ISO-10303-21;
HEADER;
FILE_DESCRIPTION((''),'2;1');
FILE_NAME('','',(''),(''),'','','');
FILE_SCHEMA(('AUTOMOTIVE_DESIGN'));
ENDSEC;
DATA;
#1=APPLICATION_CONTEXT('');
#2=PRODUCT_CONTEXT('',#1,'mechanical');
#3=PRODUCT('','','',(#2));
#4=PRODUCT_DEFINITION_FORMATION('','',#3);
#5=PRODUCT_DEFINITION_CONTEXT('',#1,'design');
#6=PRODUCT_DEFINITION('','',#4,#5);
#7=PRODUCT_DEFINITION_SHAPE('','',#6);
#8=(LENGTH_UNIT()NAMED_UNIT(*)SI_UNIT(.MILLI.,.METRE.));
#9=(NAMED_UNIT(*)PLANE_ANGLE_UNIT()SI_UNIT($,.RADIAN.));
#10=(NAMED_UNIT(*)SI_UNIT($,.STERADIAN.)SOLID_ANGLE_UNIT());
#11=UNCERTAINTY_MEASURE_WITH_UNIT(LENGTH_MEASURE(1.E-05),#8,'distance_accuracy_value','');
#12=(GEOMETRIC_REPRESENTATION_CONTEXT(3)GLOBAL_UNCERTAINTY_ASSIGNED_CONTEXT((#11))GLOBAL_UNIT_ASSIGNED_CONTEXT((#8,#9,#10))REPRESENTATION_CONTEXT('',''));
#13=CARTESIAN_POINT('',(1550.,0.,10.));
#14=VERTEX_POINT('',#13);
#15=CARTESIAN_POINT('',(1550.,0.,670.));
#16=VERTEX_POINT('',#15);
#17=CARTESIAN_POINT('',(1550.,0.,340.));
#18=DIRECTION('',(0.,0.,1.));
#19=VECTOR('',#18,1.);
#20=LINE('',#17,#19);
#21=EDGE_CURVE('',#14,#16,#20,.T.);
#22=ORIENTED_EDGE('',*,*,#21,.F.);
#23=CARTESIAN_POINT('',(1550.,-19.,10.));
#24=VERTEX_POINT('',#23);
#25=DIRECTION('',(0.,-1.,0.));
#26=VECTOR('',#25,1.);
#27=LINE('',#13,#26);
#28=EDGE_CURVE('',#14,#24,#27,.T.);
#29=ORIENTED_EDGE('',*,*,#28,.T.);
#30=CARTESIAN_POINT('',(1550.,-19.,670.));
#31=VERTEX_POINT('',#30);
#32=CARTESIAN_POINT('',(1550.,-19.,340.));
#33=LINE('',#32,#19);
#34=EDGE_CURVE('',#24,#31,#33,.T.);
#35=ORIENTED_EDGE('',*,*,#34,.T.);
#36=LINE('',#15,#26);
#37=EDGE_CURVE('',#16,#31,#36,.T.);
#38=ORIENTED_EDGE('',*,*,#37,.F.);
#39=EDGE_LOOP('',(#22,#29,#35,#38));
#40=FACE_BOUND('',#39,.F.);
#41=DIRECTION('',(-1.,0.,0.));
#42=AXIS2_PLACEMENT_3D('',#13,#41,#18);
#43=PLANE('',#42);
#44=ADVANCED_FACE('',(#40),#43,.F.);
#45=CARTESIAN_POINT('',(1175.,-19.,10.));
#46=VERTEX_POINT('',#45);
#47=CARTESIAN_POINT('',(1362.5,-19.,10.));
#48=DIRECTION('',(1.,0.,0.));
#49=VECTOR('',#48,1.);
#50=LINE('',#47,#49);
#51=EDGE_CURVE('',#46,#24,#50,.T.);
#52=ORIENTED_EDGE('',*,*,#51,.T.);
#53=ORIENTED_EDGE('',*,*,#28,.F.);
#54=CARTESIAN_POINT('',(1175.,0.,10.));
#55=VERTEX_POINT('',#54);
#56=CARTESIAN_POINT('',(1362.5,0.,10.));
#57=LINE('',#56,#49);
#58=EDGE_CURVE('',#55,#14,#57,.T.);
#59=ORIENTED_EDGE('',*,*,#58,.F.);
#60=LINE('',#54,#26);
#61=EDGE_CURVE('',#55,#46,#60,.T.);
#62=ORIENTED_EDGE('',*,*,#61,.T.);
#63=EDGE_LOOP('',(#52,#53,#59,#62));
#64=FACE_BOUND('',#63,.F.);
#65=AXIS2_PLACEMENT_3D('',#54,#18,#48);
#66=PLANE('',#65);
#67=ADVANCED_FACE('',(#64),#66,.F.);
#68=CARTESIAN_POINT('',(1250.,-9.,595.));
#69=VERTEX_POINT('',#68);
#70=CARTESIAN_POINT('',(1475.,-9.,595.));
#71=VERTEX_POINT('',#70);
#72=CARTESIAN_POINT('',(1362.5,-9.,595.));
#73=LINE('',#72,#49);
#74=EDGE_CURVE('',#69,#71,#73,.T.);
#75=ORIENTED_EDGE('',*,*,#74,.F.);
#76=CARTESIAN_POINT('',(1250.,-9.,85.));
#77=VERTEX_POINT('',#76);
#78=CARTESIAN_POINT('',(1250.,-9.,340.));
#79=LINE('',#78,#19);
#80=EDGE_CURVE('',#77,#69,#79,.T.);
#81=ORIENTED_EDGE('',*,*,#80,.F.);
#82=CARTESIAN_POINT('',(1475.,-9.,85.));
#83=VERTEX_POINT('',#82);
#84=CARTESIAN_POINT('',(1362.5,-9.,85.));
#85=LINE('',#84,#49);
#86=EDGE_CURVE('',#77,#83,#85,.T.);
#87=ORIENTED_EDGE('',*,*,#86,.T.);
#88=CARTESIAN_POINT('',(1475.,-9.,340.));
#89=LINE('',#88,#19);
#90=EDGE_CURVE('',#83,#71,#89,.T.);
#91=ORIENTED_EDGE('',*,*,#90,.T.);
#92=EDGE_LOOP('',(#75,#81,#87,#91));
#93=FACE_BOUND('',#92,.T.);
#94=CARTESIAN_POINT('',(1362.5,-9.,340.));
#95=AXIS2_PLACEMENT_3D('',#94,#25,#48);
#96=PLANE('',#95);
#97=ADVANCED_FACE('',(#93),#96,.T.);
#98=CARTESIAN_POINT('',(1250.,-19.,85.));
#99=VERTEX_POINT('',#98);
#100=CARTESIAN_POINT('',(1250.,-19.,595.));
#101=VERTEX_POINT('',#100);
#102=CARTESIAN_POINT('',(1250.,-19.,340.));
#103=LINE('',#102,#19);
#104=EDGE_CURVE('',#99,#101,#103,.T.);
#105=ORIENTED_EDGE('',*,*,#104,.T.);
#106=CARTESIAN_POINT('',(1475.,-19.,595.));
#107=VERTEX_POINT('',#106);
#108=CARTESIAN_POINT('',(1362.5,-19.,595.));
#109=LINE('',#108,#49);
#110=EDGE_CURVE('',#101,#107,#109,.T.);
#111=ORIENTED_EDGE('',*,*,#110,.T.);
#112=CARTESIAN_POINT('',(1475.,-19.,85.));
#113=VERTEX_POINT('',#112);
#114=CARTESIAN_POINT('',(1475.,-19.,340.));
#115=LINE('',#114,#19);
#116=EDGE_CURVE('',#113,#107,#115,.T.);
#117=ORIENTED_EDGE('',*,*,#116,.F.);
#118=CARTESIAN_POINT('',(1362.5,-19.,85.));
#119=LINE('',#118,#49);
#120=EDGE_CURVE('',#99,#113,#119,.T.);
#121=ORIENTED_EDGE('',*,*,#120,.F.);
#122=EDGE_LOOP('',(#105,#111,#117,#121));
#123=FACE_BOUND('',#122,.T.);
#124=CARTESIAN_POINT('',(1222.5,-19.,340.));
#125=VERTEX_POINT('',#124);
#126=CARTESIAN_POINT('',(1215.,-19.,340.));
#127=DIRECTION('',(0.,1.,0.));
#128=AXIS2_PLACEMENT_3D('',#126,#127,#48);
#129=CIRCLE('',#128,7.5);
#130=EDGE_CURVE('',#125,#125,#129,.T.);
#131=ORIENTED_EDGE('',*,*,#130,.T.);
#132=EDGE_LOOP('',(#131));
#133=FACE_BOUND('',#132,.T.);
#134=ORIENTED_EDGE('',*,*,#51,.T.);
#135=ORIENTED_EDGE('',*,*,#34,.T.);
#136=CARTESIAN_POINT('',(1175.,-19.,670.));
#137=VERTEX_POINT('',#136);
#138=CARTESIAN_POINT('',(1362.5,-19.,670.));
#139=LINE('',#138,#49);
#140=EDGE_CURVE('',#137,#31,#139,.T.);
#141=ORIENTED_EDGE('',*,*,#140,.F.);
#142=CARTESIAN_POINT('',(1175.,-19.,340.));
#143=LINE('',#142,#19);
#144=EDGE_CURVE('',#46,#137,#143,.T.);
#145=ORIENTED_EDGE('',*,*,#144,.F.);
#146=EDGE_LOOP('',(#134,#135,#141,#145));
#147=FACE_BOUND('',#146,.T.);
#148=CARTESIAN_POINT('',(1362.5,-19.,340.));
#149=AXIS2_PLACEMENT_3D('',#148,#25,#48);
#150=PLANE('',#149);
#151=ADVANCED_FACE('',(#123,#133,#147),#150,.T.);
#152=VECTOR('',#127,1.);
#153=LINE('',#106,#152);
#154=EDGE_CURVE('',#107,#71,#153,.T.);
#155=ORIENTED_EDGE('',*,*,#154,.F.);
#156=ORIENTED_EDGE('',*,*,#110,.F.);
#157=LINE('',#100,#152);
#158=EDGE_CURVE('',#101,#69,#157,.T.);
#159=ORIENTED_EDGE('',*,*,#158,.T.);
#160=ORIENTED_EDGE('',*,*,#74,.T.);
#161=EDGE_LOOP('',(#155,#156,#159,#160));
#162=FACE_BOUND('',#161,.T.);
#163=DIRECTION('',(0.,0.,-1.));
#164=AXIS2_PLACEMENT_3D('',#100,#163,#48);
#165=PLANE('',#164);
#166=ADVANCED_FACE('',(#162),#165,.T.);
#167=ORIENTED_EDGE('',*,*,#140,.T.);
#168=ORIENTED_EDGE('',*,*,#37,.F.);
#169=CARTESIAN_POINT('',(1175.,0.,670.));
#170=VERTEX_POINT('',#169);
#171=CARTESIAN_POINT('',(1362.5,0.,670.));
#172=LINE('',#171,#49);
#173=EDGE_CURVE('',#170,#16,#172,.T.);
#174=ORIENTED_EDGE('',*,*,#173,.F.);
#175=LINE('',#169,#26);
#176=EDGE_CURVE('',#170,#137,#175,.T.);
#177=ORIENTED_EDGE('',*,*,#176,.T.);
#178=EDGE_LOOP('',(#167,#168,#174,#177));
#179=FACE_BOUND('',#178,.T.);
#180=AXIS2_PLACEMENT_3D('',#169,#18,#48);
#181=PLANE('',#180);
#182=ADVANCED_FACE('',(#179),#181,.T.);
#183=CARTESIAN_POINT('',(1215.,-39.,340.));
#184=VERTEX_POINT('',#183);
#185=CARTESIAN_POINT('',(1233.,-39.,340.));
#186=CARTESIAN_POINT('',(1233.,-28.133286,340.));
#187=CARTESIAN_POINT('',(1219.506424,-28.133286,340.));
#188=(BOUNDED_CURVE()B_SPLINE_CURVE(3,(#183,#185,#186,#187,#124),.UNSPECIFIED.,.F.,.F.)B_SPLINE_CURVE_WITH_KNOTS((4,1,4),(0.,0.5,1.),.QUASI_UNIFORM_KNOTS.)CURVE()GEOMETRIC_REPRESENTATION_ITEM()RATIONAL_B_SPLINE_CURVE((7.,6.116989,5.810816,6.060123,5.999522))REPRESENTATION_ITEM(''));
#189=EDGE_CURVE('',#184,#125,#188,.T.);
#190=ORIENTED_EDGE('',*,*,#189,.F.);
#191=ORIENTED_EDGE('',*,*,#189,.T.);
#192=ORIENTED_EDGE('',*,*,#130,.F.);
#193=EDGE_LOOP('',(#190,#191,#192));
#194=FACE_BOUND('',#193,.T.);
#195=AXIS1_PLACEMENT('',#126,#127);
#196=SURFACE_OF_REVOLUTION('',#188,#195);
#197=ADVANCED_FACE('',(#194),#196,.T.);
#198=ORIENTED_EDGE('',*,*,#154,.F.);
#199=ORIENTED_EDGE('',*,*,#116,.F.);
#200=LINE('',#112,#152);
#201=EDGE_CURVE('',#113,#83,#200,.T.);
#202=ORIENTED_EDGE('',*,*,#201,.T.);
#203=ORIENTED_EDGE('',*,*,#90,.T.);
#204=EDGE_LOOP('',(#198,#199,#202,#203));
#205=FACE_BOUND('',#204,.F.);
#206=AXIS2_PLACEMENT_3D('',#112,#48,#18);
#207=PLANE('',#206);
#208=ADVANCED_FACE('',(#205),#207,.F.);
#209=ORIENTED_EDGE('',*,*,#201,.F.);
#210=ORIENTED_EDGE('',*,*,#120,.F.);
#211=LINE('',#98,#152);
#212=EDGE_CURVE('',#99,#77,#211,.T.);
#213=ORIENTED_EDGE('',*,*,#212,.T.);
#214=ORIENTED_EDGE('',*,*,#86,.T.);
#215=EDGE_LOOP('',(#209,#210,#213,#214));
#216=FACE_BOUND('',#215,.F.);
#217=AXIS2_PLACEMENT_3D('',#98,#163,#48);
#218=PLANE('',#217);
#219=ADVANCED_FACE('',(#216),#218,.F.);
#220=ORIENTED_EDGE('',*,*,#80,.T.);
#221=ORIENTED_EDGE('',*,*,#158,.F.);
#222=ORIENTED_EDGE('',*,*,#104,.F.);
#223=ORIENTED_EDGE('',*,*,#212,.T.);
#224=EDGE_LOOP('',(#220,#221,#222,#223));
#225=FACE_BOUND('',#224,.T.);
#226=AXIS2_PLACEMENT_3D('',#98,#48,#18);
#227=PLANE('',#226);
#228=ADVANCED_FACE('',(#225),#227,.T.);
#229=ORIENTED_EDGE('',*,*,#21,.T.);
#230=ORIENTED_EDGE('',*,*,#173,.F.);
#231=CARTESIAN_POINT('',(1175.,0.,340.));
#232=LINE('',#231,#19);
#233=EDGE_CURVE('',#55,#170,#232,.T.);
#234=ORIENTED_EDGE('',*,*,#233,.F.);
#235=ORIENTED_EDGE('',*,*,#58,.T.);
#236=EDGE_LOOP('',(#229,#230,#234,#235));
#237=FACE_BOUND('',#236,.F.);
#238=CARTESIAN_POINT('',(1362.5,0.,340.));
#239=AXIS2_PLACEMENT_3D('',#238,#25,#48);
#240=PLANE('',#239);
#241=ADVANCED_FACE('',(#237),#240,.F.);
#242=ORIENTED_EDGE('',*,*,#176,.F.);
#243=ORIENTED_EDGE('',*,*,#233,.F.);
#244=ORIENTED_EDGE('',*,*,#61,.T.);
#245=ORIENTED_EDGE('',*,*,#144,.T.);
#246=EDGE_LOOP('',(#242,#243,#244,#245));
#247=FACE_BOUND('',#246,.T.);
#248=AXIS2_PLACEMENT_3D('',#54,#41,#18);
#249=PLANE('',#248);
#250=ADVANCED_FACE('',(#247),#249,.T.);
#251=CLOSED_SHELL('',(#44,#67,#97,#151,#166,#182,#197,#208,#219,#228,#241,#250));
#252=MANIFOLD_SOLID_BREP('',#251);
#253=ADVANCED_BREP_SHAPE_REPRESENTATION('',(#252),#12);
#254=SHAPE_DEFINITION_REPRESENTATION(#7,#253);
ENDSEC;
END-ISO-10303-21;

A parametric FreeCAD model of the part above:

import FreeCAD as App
import Part
import Sketcher

V = App.Vector

doc = App.newDocument("Part")
body = doc.addObject("PartDesign::Body", "Body")

sketch1 = body.newObject("Sketcher::SketchObject", "Sketch")
sketch1.AttachmentSupport = (doc.getObject("XZ_Plane"), [""])
sketch1.MapMode = "FlatFace"
sketch1.addGeometry([
    Part.LineSegment(V(0, 660, 0), V(0, 0, 0)),
    Part.LineSegment(V(0, 0, 0), V(375, 0, 0)),
    Part.LineSegment(V(375, 0, 0), V(375, 660, 0)),
    Part.LineSegment(V(375, 660, 0), V(0, 660, 0)),
], False)
sketch1.addConstraint([
    Sketcher.Constraint("Coincident", 0, 2, 1, 1),
    Sketcher.Constraint("Coincident", 1, 2, 2, 1),
    Sketcher.Constraint("Coincident", 2, 2, 3, 1),
    Sketcher.Constraint("Coincident", 3, 2, 0, 1),
    Sketcher.Constraint("Vertical", 0),
    Sketcher.Constraint("Horizontal", 1),
    Sketcher.Constraint("Vertical", 2),
    Sketcher.Constraint("Horizontal", 3),
    Sketcher.Constraint("Coincident", 0, 2, -1, 1),
    Sketcher.Constraint("DistanceX", 1, 1, 1, 2, 375.0),
    Sketcher.Constraint("DistanceY", 0, 2, 0, 1, 660.0),
])
pad1 = body.newObject("PartDesign::Pad", "Pad")
pad1.Profile = sketch1
pad1.Length = 19

sketch2 = body.newObject("Sketcher::SketchObject", "Sketch001")
sketch2.AttachmentSupport = (doc.getObject("XZ_Plane"), [""])
sketch2.MapMode = "FlatFace"
sketch2.AttachmentOffset = App.Placement(V(0, 0, 19), App.Rotation())
sketch2.addGeometry([
    Part.LineSegment(V(75, 585, 0), V(75, 75, 0)),
    Part.LineSegment(V(75, 75, 0), V(300, 75, 0)),
    Part.LineSegment(V(300, 75, 0), V(300, 585, 0)),
    Part.LineSegment(V(300, 585, 0), V(75, 585, 0)),
], False)
sketch2.addConstraint([
    Sketcher.Constraint("Coincident", 0, 2, 1, 1),
    Sketcher.Constraint("Coincident", 1, 2, 2, 1),
    Sketcher.Constraint("Coincident", 2, 2, 3, 1),
    Sketcher.Constraint("Coincident", 3, 2, 0, 1),
    Sketcher.Constraint("Vertical", 0),
    Sketcher.Constraint("Horizontal", 1),
    Sketcher.Constraint("Vertical", 2),
    Sketcher.Constraint("Horizontal", 3),
    Sketcher.Constraint("DistanceX", 1, 1, 1, 2, 225.0),
    Sketcher.Constraint("DistanceY", 0, 2, 0, 1, 510.0),
    Sketcher.Constraint("DistanceX", -1, 1, 0, 2, 75.0),
    Sketcher.Constraint("DistanceY", -1, 1, 0, 2, 75.0),
])
pocket1 = body.newObject("PartDesign::Pocket", "Pocket")
pocket1.Profile = sketch2
pocket1.Length = 10

sketch3 = body.newObject("Sketcher::SketchObject", "Sketch002")
sketch3.AttachmentSupport = (doc.getObject("XY_Plane"), [""])
sketch3.MapMode = "FlatFace"
sketch3.AttachmentOffset = App.Placement(V(0, 0, 330), App.Rotation())
sketch3.addGeometry([
    Part.LineSegment(V(40, -39, 0), V(40, -19, 0)),
    Part.LineSegment(V(40, -19, 0), V(47.5, -19, 0)),
    Part.BSplineCurve([V(40, -39, 0), V(58, -39, 0), V(58, -28.133286, 0), V(44.506424, -28.133286, 0), V(47.5, -19, 0)], [4, 1, 4], [0, 0.5, 1], False, 3, [7, 6.116989, 5.810816, 6.060123, 5.999522], False),
], False)
sketch3.addGeometry(Part.LineSegment(V(40, -39, 0), V(40, -19, 0)), True)
sketch3.addConstraint([
    Sketcher.Constraint("Block", 2),
    Sketcher.Constraint("Coincident", 0, 2, 1, 1),
    Sketcher.Constraint("Coincident", 1, 2, 2, 2),
    Sketcher.Constraint("Coincident", 2, 1, 0, 1),
    Sketcher.Constraint("Vertical", 0),
    Sketcher.Constraint("Horizontal", 1),
    Sketcher.Constraint("Vertical", 3),
    Sketcher.Constraint("Coincident", 3, 2, 0, 2),
    Sketcher.Constraint("Equal", 0, 3),
])
revolution = body.newObject("PartDesign::Revolution", "Revolution")
revolution.Profile = sketch3
revolution.ReferenceAxis = (sketch3, ["Axis0"])
revolution.Angle = 360
body2 = doc.addObject("PartDesign::Body", "Body001")
doc.recompute()

body.Placement = App.Placement(V(1175, 0, 10), App.Rotation(V(0, 0, 1), 0))
boolean = body2.newObject("PartDesign::Boolean", "Boolean")
boolean.Type = "Fuse"
boolean.addObjects([body])

doc.recompute()
